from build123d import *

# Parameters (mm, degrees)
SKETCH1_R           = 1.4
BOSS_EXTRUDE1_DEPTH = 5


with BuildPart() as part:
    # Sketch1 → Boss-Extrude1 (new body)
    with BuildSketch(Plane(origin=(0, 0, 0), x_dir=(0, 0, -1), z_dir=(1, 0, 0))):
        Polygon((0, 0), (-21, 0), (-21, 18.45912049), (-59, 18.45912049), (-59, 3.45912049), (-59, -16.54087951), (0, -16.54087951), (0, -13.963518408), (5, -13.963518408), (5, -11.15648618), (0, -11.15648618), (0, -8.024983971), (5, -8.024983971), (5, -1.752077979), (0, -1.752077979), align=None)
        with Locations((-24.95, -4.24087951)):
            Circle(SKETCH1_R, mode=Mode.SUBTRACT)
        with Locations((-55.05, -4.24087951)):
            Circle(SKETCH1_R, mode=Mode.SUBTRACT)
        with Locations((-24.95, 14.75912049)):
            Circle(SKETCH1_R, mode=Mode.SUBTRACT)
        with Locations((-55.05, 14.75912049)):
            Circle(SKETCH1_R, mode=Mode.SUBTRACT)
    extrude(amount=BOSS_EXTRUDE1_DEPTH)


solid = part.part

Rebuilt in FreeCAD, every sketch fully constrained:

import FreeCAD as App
import Part
import Sketcher

V = App.Vector

doc = App.newDocument("Part")
body = doc.addObject("PartDesign::Body", "Body")

# Sketch on YZ plane
sketch1 = body.newObject("Sketcher::SketchObject", "Sketch")
sketch1.AttachmentSupport = (doc.getObject("YZ_Plane"), [""])
sketch1.MapMode = "FlatFace"
sketch1.addGeometry([
    Part.LineSegment(V(0, 0, 0), V(0, 21, 0)),  # 0
    Part.LineSegment(V(0, 21, 0), V(18.45912, 21, 0)),  # 1
    Part.LineSegment(V(18.45912, 21, 0), V(18.45912, 59, 0)),  # 2
    Part.LineSegment(V(18.45912, 59, 0), V(-16.54088, 59, 0)),  # 3
    Part.LineSegment(V(-16.54088, 59, 0), V(-16.54088, 0, 0)),  # 4
    Part.LineSegment(V(-16.54088, 0, 0), V(-13.963518, 0, 0)),  # 5
    Part.LineSegment(V(-13.963518, 0, 0), V(-13.963518, -5, 0)),  # 6
    Part.LineSegment(V(-13.963518, -5, 0), V(-11.156486, -5, 0)),  # 7
    Part.LineSegment(V(-11.156486, -5, 0), V(-11.156486, 0, 0)),  # 8
    Part.LineSegment(V(-11.156486, 0, 0), V(-8.024984, 0, 0)),  # 9
    Part.LineSegment(V(-8.024984, 0, 0), V(-8.024984, -5, 0)),  # 10
    Part.LineSegment(V(-8.024984, -5, 0), V(-1.752078, -5, 0)),  # 11
    Part.LineSegment(V(-1.752078, -5, 0), V(-1.752078, 0, 0)),  # 12
    Part.LineSegment(V(-1.752078, 0, 0), V(0, 0, 0)),  # 13
    Part.Circle(V(-4.24088, 55.05, 0), V(0, 0, 1), 1.4),  # 14
    Part.Circle(V(-4.24088, 24.95, 0), V(0, 0, 1), 1.4),  # 15
    Part.Circle(V(14.75912, 55.05, 0), V(0, 0, 1), 1.4),  # 16
    Part.Circle(V(14.75912, 24.95, 0), V(0, 0, 1), 1.4),  # 17
], False)
sketch1.addConstraint([
    Sketcher.Constraint("Coincident", 0, 2, 1, 1),
    Sketcher.Constraint("Coincident", 1, 2, 2, 1),
    Sketcher.Constraint("Coincident", 2, 2, 3, 1),
    Sketcher.Constraint("Coincident", 3, 2, 4, 1),
    Sketcher.Constraint("Coincident", 4, 2, 5, 1),
    Sketcher.Constraint("Coincident", 5, 2, 6, 1),
    Sketcher.Constraint("Coincident", 6, 2, 7, 1),
    Sketcher.Constraint("Coincident", 7, 2, 8, 1),
    Sketcher.Constraint("Coincident", 8, 2, 9, 1),
    Sketcher.Constraint("Coincident", 9, 2, 10, 1),
    Sketcher.Constraint("Coincident", 10, 2, 11, 1),
    Sketcher.Constraint("Coincident", 11, 2, 12, 1),
    Sketcher.Constraint("Coincident", 12, 2, 13, 1),
    Sketcher.Constraint("Coincident", 13, 2, 0, 1),
    Sketcher.Constraint("Vertical", 0),
    Sketcher.Constraint("Horizontal", 1),
    Sketcher.Constraint("Vertical", 2),
    Sketcher.Constraint("Horizontal", 3),
    Sketcher.Constraint("Vertical", 4),
    Sketcher.Constraint("Horizontal", 5),
    Sketcher.Constraint("Vertical", 6),
    Sketcher.Constraint("Horizontal", 7),
    Sketcher.Constraint("Vertical", 8),
    Sketcher.Constraint("Horizontal", 9),
    Sketcher.Constraint("Vertical", 10),
    Sketcher.Constraint("Horizontal", 11),
    Sketcher.Constraint("Vertical", 12),
    Sketcher.Constraint("Horizontal", 13),
    Sketcher.Constraint("Coincident", 13, 2, -1, 1),
    Sketcher.Constraint("Equal", 14, 15),
    Sketcher.Constraint("Equal", 15, 16),
    Sketcher.Constraint("Equal", 16, 17),
    Sketcher.Constraint("PointOnObject", 4, 2, -1),
    Sketcher.Constraint("PointOnObject", 8, 2, -1),
    Sketcher.Constraint("Horizontal", 14, 3, 16, 3),
    Sketcher.Constraint("Horizontal", 15, 3, 17, 3),
    Sketcher.Constraint("Horizontal", 7, 2, 10, 2),
    Sketcher.Constraint("Vertical", 14, 3, 15, 3),
    Sketcher.Constraint("Vertical", 16, 3, 17, 3),
    Sketcher.Constraint("Diameter", 14, 2.8),
    Sketcher.Constraint("DistanceX", 3, 2, 3, 1, 35.0),
    Sketcher.Constraint("DistanceY", 0, 1, 0, 2, 21.0),
    Sketcher.Constraint("DistanceY", 2, 1, 2, 2, 38.0),
    Sketcher.Constraint("DistanceY", 6, 2, 6, 1, 5.0),
    Sketcher.Constraint("DistanceX", 14, 3, 16, 3, 19.0),
    Sketcher.Constraint("DistanceY", 15, 3, 14, 3, 30.1),
    Sketcher.Constraint("DistanceX", 17, 3, 1, 2, 3.7),
    Sketcher.Constraint("DistanceY", -1, 1, 14, 3, 55.05),
    Sketcher.Constraint("DistanceX", 1, 1, 1, 2, 18.45912),
    Sketcher.Constraint("DistanceX", 5, 1, 5, 2, 2.577361),
    Sketcher.Constraint("DistanceX", 7, 1, 7, 2, 2.807032),
    Sketcher.Constraint("DistanceX", 9, 1, 9, 2, 3.131502),
    Sketcher.Constraint("DistanceX", 11, 1, 11, 2, 6.272906),
])
pad1 = body.newObject("PartDesign::Pad", "Pad")
pad1.Profile = sketch1
pad1.Length = 5

doc.recompute()
